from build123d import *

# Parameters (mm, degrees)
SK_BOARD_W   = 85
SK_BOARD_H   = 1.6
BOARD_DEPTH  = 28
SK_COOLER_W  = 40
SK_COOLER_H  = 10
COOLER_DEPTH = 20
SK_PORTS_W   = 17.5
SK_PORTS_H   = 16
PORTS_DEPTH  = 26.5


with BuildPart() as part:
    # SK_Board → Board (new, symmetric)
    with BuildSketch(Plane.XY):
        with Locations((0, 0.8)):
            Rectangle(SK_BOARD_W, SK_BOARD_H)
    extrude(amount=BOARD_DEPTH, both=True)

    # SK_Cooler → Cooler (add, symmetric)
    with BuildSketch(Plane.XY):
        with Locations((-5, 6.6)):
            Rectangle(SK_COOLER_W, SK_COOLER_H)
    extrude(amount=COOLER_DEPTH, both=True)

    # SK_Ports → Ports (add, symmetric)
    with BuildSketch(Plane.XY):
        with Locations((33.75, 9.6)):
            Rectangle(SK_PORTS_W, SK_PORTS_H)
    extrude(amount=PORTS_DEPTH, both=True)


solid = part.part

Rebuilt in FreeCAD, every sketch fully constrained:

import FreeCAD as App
import Part
import Sketcher
from FreeCAD import Vector
Q = App.Units.Quantity

doc = App.newDocument("Part")
body = doc.addObject("PartDesign::Body", "Body")

# Sketch on XY plane
sketch1 = body.newObject("Sketcher::SketchObject", "Sketch")
sketch1.AttachmentSupport = (doc.getObject("XY_Plane"), [""])
sketch1.MapMode = "FlatFace"
sketch1.addGeometry([
    Part.LineSegment(Vector(-42.5, 1.6, 0), Vector(-42.5, 0, 0)),
    Part.LineSegment(Vector(-42.5, 0, 0), Vector(42.5, 0, 0)),
    Part.LineSegment(Vector(42.5, 0, 0), Vector(42.5, 1.6, 0)),
    Part.LineSegment(Vector(42.5, 1.6, 0), Vector(-42.5, 1.6, 0)),
], False)
sketch1.addConstraint([
    Sketcher.Constraint("Coincident", 0, 2, 1, 1),
    Sketcher.Constraint("Coincident", 1, 2, 2, 1),
    Sketcher.Constraint("Coincident", 2, 2, 3, 1),
    Sketcher.Constraint("Coincident", 3, 2, 0, 1),
    Sketcher.Constraint("Vertical", 0),
    Sketcher.Constraint("Horizontal", 1),
    Sketcher.Constraint("Vertical", 2),
    Sketcher.Constraint("Horizontal", 3),
    Sketcher.Constraint("Symmetric", 0, 2, 1, 2, -1, 1),
    Sketcher.Constraint("DistanceX", 1, 1, 1, 2, Q("85 mm")),
    Sketcher.Constraint("DistanceY", 0, 2, 0, 1, Q("1.6 mm")),
])
pad1 = body.newObject("PartDesign::Pad", "Pad")
pad1.Profile = sketch1
pad1.Length = 56
pad1.Midplane = True

# Sketch on XY plane
sketch2 = body.newObject("Sketcher::SketchObject", "Sketch001")
sketch2.AttachmentSupport = (doc.getObject("XY_Plane"), [""])
sketch2.MapMode = "FlatFace"
sketch2.addGeometry([
    Part.LineSegment(Vector(-25, 12, 0), Vector(-25, 2, 0)),
    Part.LineSegment(Vector(-25, 2, 0), Vector(15, 2, 0)),
    Part.LineSegment(Vector(15, 2, 0), Vector(15, 12, 0)),
    Part.LineSegment(Vector(15, 12, 0), Vector(-25, 12, 0)),
], False)
sketch2.addConstraint([
    Sketcher.Constraint("Coincident", 0, 2, 1, 1),
    Sketcher.Constraint("Coincident", 1, 2, 2, 1),
    Sketcher.Constraint("Coincident", 2, 2, 3, 1),
    Sketcher.Constraint("Coincident", 3, 2, 0, 1),
    Sketcher.Constraint("Vertical", 0),
    Sketcher.Constraint("Horizontal", 1),
    Sketcher.Constraint("Vertical", 2),
    Sketcher.Constraint("Horizontal", 3),
    Sketcher.Constraint("DistanceX", 1, 1, 1, 2, Q("40 mm")),
    Sketcher.Constraint("DistanceY", 0, 2, 0, 1, Q("10 mm")),
    Sketcher.Constraint("DistanceX", 0, 2, -1, 1, Q("25 mm")),
    Sketcher.Constraint("DistanceY", -1, 1, 0, 2, Q("1.6 mm")),
])
pad2 = body.newObject("PartDesign::Pad", "Pad001")
pad2.Profile = sketch2
pad2.Length = 40
pad2.Midplane = True

# Sketch on XY plane
sketch3 = body.newObject("Sketcher::SketchObject", "Sketch002")
sketch3.AttachmentSupport = (doc.getObject("XY_Plane"), [""])
sketch3.MapMode = "FlatFace"
sketch3.addGeometry([
    Part.LineSegment(Vector(25, 18, 0), Vector(25, 2, 0)),
    Part.LineSegment(Vector(25, 2, 0), Vector(42, 2, 0)),
    Part.LineSegment(Vector(42, 2, 0), Vector(42, 18, 0)),
    Part.LineSegment(Vector(42, 18, 0), Vector(25, 18, 0)),
], False)
sketch3.addConstraint([
    Sketcher.Constraint("Coincident", 0, 2, 1, 1),
    Sketcher.Constraint("Coincident", 1, 2, 2, 1),
    Sketcher.Constraint("Coincident", 2, 2, 3, 1),
    Sketcher.Constraint("Coincident", 3, 2, 0, 1),
    Sketcher.Constraint("Vertical", 0),
    Sketcher.Constraint("Horizontal", 1),
    Sketcher.Constraint("Vertical", 2),
    Sketcher.Constraint("Horizontal", 3),
    Sketcher.Constraint("DistanceY", 0, 2, 0, 1, Q("16 mm")),
    Sketcher.Constraint("DistanceX", 1, 1, 1, 2, Q("17.5 mm")),
    Sketcher.Constraint("DistanceX", -1, 1, 0, 2, Q("25 mm")),
    Sketcher.Constraint("DistanceY", -1, 1, 0, 2, Q("1.6 mm")),
])
pad3 = body.newObject("PartDesign::Pad", "Pad002")
pad3.Profile = sketch3
pad3.Length = 53
pad3.Midplane = True

doc.recompute()
